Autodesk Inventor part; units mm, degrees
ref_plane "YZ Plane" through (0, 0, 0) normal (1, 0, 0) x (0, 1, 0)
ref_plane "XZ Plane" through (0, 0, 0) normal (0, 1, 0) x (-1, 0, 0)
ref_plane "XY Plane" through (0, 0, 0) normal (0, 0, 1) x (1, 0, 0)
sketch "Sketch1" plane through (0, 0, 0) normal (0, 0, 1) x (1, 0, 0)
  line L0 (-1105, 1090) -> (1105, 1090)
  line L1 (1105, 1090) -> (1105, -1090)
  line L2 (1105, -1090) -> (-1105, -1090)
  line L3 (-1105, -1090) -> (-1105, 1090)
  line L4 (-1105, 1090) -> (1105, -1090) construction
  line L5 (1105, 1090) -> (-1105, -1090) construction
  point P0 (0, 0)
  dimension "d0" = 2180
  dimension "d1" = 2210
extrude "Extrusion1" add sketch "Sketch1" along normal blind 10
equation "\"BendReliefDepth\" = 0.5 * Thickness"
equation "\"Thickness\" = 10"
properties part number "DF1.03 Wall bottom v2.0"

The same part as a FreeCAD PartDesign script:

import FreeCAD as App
import Part
import Sketcher
from FreeCAD import Vector
Q = App.Units.Quantity

doc = App.newDocument("Part")
body = doc.addObject("PartDesign::Body", "Body")

# Sketch on XY plane
sketch1 = body.newObject("Sketcher::SketchObject", "Sketch")
sketch1.AttachmentSupport = (doc.getObject("XY_Plane"), [""])
sketch1.MapMode = "FlatFace"
sketch1.addGeometry(Part.LineSegment(Vector(1105, 1090, 0), Vector(-1105, 1090, 0)), False)
sketch1.addGeometry(Part.LineSegment(Vector(-1105, 1090, 0), Vector(-1105, -1090, 0)), False)
sketch1.addGeometry(Part.LineSegment(Vector(-1105, -1090, 0), Vector(1105, -1090, 0)), False)
sketch1.addGeometry(Part.LineSegment(Vector(1105, -1090, 0), Vector(1105, 1090, 0)), False)
sketch1.addConstraint(Sketcher.Constraint("Coincident", 0, 2, 1, 1))
sketch1.addConstraint(Sketcher.Constraint("Coincident", 1, 2, 2, 1))
sketch1.addConstraint(Sketcher.Constraint("Coincident", 2, 2, 3, 1))
sketch1.addConstraint(Sketcher.Constraint("Coincident", 3, 2, 0, 1))
sketch1.addConstraint(Sketcher.Constraint("Horizontal", 0))
sketch1.addConstraint(Sketcher.Constraint("Vertical", 1))
sketch1.addConstraint(Sketcher.Constraint("Horizontal", 2))
sketch1.addConstraint(Sketcher.Constraint("Vertical", 3))
sketch1.addConstraint(Sketcher.Constraint("Symmetric", 0, 2, 2, 2, -1, 1))
sketch1.addConstraint(Sketcher.Constraint("DistanceX", 0, 2, 0, 1, Q("2210 mm")))
sketch1.addConstraint(Sketcher.Constraint("DistanceY", 1, 2, 1, 1, Q("2180 mm")))
pad1 = body.newObject("PartDesign::Pad", "Pad")
pad1.Profile = sketch1
pad1.Length = 10

doc.recompute()
